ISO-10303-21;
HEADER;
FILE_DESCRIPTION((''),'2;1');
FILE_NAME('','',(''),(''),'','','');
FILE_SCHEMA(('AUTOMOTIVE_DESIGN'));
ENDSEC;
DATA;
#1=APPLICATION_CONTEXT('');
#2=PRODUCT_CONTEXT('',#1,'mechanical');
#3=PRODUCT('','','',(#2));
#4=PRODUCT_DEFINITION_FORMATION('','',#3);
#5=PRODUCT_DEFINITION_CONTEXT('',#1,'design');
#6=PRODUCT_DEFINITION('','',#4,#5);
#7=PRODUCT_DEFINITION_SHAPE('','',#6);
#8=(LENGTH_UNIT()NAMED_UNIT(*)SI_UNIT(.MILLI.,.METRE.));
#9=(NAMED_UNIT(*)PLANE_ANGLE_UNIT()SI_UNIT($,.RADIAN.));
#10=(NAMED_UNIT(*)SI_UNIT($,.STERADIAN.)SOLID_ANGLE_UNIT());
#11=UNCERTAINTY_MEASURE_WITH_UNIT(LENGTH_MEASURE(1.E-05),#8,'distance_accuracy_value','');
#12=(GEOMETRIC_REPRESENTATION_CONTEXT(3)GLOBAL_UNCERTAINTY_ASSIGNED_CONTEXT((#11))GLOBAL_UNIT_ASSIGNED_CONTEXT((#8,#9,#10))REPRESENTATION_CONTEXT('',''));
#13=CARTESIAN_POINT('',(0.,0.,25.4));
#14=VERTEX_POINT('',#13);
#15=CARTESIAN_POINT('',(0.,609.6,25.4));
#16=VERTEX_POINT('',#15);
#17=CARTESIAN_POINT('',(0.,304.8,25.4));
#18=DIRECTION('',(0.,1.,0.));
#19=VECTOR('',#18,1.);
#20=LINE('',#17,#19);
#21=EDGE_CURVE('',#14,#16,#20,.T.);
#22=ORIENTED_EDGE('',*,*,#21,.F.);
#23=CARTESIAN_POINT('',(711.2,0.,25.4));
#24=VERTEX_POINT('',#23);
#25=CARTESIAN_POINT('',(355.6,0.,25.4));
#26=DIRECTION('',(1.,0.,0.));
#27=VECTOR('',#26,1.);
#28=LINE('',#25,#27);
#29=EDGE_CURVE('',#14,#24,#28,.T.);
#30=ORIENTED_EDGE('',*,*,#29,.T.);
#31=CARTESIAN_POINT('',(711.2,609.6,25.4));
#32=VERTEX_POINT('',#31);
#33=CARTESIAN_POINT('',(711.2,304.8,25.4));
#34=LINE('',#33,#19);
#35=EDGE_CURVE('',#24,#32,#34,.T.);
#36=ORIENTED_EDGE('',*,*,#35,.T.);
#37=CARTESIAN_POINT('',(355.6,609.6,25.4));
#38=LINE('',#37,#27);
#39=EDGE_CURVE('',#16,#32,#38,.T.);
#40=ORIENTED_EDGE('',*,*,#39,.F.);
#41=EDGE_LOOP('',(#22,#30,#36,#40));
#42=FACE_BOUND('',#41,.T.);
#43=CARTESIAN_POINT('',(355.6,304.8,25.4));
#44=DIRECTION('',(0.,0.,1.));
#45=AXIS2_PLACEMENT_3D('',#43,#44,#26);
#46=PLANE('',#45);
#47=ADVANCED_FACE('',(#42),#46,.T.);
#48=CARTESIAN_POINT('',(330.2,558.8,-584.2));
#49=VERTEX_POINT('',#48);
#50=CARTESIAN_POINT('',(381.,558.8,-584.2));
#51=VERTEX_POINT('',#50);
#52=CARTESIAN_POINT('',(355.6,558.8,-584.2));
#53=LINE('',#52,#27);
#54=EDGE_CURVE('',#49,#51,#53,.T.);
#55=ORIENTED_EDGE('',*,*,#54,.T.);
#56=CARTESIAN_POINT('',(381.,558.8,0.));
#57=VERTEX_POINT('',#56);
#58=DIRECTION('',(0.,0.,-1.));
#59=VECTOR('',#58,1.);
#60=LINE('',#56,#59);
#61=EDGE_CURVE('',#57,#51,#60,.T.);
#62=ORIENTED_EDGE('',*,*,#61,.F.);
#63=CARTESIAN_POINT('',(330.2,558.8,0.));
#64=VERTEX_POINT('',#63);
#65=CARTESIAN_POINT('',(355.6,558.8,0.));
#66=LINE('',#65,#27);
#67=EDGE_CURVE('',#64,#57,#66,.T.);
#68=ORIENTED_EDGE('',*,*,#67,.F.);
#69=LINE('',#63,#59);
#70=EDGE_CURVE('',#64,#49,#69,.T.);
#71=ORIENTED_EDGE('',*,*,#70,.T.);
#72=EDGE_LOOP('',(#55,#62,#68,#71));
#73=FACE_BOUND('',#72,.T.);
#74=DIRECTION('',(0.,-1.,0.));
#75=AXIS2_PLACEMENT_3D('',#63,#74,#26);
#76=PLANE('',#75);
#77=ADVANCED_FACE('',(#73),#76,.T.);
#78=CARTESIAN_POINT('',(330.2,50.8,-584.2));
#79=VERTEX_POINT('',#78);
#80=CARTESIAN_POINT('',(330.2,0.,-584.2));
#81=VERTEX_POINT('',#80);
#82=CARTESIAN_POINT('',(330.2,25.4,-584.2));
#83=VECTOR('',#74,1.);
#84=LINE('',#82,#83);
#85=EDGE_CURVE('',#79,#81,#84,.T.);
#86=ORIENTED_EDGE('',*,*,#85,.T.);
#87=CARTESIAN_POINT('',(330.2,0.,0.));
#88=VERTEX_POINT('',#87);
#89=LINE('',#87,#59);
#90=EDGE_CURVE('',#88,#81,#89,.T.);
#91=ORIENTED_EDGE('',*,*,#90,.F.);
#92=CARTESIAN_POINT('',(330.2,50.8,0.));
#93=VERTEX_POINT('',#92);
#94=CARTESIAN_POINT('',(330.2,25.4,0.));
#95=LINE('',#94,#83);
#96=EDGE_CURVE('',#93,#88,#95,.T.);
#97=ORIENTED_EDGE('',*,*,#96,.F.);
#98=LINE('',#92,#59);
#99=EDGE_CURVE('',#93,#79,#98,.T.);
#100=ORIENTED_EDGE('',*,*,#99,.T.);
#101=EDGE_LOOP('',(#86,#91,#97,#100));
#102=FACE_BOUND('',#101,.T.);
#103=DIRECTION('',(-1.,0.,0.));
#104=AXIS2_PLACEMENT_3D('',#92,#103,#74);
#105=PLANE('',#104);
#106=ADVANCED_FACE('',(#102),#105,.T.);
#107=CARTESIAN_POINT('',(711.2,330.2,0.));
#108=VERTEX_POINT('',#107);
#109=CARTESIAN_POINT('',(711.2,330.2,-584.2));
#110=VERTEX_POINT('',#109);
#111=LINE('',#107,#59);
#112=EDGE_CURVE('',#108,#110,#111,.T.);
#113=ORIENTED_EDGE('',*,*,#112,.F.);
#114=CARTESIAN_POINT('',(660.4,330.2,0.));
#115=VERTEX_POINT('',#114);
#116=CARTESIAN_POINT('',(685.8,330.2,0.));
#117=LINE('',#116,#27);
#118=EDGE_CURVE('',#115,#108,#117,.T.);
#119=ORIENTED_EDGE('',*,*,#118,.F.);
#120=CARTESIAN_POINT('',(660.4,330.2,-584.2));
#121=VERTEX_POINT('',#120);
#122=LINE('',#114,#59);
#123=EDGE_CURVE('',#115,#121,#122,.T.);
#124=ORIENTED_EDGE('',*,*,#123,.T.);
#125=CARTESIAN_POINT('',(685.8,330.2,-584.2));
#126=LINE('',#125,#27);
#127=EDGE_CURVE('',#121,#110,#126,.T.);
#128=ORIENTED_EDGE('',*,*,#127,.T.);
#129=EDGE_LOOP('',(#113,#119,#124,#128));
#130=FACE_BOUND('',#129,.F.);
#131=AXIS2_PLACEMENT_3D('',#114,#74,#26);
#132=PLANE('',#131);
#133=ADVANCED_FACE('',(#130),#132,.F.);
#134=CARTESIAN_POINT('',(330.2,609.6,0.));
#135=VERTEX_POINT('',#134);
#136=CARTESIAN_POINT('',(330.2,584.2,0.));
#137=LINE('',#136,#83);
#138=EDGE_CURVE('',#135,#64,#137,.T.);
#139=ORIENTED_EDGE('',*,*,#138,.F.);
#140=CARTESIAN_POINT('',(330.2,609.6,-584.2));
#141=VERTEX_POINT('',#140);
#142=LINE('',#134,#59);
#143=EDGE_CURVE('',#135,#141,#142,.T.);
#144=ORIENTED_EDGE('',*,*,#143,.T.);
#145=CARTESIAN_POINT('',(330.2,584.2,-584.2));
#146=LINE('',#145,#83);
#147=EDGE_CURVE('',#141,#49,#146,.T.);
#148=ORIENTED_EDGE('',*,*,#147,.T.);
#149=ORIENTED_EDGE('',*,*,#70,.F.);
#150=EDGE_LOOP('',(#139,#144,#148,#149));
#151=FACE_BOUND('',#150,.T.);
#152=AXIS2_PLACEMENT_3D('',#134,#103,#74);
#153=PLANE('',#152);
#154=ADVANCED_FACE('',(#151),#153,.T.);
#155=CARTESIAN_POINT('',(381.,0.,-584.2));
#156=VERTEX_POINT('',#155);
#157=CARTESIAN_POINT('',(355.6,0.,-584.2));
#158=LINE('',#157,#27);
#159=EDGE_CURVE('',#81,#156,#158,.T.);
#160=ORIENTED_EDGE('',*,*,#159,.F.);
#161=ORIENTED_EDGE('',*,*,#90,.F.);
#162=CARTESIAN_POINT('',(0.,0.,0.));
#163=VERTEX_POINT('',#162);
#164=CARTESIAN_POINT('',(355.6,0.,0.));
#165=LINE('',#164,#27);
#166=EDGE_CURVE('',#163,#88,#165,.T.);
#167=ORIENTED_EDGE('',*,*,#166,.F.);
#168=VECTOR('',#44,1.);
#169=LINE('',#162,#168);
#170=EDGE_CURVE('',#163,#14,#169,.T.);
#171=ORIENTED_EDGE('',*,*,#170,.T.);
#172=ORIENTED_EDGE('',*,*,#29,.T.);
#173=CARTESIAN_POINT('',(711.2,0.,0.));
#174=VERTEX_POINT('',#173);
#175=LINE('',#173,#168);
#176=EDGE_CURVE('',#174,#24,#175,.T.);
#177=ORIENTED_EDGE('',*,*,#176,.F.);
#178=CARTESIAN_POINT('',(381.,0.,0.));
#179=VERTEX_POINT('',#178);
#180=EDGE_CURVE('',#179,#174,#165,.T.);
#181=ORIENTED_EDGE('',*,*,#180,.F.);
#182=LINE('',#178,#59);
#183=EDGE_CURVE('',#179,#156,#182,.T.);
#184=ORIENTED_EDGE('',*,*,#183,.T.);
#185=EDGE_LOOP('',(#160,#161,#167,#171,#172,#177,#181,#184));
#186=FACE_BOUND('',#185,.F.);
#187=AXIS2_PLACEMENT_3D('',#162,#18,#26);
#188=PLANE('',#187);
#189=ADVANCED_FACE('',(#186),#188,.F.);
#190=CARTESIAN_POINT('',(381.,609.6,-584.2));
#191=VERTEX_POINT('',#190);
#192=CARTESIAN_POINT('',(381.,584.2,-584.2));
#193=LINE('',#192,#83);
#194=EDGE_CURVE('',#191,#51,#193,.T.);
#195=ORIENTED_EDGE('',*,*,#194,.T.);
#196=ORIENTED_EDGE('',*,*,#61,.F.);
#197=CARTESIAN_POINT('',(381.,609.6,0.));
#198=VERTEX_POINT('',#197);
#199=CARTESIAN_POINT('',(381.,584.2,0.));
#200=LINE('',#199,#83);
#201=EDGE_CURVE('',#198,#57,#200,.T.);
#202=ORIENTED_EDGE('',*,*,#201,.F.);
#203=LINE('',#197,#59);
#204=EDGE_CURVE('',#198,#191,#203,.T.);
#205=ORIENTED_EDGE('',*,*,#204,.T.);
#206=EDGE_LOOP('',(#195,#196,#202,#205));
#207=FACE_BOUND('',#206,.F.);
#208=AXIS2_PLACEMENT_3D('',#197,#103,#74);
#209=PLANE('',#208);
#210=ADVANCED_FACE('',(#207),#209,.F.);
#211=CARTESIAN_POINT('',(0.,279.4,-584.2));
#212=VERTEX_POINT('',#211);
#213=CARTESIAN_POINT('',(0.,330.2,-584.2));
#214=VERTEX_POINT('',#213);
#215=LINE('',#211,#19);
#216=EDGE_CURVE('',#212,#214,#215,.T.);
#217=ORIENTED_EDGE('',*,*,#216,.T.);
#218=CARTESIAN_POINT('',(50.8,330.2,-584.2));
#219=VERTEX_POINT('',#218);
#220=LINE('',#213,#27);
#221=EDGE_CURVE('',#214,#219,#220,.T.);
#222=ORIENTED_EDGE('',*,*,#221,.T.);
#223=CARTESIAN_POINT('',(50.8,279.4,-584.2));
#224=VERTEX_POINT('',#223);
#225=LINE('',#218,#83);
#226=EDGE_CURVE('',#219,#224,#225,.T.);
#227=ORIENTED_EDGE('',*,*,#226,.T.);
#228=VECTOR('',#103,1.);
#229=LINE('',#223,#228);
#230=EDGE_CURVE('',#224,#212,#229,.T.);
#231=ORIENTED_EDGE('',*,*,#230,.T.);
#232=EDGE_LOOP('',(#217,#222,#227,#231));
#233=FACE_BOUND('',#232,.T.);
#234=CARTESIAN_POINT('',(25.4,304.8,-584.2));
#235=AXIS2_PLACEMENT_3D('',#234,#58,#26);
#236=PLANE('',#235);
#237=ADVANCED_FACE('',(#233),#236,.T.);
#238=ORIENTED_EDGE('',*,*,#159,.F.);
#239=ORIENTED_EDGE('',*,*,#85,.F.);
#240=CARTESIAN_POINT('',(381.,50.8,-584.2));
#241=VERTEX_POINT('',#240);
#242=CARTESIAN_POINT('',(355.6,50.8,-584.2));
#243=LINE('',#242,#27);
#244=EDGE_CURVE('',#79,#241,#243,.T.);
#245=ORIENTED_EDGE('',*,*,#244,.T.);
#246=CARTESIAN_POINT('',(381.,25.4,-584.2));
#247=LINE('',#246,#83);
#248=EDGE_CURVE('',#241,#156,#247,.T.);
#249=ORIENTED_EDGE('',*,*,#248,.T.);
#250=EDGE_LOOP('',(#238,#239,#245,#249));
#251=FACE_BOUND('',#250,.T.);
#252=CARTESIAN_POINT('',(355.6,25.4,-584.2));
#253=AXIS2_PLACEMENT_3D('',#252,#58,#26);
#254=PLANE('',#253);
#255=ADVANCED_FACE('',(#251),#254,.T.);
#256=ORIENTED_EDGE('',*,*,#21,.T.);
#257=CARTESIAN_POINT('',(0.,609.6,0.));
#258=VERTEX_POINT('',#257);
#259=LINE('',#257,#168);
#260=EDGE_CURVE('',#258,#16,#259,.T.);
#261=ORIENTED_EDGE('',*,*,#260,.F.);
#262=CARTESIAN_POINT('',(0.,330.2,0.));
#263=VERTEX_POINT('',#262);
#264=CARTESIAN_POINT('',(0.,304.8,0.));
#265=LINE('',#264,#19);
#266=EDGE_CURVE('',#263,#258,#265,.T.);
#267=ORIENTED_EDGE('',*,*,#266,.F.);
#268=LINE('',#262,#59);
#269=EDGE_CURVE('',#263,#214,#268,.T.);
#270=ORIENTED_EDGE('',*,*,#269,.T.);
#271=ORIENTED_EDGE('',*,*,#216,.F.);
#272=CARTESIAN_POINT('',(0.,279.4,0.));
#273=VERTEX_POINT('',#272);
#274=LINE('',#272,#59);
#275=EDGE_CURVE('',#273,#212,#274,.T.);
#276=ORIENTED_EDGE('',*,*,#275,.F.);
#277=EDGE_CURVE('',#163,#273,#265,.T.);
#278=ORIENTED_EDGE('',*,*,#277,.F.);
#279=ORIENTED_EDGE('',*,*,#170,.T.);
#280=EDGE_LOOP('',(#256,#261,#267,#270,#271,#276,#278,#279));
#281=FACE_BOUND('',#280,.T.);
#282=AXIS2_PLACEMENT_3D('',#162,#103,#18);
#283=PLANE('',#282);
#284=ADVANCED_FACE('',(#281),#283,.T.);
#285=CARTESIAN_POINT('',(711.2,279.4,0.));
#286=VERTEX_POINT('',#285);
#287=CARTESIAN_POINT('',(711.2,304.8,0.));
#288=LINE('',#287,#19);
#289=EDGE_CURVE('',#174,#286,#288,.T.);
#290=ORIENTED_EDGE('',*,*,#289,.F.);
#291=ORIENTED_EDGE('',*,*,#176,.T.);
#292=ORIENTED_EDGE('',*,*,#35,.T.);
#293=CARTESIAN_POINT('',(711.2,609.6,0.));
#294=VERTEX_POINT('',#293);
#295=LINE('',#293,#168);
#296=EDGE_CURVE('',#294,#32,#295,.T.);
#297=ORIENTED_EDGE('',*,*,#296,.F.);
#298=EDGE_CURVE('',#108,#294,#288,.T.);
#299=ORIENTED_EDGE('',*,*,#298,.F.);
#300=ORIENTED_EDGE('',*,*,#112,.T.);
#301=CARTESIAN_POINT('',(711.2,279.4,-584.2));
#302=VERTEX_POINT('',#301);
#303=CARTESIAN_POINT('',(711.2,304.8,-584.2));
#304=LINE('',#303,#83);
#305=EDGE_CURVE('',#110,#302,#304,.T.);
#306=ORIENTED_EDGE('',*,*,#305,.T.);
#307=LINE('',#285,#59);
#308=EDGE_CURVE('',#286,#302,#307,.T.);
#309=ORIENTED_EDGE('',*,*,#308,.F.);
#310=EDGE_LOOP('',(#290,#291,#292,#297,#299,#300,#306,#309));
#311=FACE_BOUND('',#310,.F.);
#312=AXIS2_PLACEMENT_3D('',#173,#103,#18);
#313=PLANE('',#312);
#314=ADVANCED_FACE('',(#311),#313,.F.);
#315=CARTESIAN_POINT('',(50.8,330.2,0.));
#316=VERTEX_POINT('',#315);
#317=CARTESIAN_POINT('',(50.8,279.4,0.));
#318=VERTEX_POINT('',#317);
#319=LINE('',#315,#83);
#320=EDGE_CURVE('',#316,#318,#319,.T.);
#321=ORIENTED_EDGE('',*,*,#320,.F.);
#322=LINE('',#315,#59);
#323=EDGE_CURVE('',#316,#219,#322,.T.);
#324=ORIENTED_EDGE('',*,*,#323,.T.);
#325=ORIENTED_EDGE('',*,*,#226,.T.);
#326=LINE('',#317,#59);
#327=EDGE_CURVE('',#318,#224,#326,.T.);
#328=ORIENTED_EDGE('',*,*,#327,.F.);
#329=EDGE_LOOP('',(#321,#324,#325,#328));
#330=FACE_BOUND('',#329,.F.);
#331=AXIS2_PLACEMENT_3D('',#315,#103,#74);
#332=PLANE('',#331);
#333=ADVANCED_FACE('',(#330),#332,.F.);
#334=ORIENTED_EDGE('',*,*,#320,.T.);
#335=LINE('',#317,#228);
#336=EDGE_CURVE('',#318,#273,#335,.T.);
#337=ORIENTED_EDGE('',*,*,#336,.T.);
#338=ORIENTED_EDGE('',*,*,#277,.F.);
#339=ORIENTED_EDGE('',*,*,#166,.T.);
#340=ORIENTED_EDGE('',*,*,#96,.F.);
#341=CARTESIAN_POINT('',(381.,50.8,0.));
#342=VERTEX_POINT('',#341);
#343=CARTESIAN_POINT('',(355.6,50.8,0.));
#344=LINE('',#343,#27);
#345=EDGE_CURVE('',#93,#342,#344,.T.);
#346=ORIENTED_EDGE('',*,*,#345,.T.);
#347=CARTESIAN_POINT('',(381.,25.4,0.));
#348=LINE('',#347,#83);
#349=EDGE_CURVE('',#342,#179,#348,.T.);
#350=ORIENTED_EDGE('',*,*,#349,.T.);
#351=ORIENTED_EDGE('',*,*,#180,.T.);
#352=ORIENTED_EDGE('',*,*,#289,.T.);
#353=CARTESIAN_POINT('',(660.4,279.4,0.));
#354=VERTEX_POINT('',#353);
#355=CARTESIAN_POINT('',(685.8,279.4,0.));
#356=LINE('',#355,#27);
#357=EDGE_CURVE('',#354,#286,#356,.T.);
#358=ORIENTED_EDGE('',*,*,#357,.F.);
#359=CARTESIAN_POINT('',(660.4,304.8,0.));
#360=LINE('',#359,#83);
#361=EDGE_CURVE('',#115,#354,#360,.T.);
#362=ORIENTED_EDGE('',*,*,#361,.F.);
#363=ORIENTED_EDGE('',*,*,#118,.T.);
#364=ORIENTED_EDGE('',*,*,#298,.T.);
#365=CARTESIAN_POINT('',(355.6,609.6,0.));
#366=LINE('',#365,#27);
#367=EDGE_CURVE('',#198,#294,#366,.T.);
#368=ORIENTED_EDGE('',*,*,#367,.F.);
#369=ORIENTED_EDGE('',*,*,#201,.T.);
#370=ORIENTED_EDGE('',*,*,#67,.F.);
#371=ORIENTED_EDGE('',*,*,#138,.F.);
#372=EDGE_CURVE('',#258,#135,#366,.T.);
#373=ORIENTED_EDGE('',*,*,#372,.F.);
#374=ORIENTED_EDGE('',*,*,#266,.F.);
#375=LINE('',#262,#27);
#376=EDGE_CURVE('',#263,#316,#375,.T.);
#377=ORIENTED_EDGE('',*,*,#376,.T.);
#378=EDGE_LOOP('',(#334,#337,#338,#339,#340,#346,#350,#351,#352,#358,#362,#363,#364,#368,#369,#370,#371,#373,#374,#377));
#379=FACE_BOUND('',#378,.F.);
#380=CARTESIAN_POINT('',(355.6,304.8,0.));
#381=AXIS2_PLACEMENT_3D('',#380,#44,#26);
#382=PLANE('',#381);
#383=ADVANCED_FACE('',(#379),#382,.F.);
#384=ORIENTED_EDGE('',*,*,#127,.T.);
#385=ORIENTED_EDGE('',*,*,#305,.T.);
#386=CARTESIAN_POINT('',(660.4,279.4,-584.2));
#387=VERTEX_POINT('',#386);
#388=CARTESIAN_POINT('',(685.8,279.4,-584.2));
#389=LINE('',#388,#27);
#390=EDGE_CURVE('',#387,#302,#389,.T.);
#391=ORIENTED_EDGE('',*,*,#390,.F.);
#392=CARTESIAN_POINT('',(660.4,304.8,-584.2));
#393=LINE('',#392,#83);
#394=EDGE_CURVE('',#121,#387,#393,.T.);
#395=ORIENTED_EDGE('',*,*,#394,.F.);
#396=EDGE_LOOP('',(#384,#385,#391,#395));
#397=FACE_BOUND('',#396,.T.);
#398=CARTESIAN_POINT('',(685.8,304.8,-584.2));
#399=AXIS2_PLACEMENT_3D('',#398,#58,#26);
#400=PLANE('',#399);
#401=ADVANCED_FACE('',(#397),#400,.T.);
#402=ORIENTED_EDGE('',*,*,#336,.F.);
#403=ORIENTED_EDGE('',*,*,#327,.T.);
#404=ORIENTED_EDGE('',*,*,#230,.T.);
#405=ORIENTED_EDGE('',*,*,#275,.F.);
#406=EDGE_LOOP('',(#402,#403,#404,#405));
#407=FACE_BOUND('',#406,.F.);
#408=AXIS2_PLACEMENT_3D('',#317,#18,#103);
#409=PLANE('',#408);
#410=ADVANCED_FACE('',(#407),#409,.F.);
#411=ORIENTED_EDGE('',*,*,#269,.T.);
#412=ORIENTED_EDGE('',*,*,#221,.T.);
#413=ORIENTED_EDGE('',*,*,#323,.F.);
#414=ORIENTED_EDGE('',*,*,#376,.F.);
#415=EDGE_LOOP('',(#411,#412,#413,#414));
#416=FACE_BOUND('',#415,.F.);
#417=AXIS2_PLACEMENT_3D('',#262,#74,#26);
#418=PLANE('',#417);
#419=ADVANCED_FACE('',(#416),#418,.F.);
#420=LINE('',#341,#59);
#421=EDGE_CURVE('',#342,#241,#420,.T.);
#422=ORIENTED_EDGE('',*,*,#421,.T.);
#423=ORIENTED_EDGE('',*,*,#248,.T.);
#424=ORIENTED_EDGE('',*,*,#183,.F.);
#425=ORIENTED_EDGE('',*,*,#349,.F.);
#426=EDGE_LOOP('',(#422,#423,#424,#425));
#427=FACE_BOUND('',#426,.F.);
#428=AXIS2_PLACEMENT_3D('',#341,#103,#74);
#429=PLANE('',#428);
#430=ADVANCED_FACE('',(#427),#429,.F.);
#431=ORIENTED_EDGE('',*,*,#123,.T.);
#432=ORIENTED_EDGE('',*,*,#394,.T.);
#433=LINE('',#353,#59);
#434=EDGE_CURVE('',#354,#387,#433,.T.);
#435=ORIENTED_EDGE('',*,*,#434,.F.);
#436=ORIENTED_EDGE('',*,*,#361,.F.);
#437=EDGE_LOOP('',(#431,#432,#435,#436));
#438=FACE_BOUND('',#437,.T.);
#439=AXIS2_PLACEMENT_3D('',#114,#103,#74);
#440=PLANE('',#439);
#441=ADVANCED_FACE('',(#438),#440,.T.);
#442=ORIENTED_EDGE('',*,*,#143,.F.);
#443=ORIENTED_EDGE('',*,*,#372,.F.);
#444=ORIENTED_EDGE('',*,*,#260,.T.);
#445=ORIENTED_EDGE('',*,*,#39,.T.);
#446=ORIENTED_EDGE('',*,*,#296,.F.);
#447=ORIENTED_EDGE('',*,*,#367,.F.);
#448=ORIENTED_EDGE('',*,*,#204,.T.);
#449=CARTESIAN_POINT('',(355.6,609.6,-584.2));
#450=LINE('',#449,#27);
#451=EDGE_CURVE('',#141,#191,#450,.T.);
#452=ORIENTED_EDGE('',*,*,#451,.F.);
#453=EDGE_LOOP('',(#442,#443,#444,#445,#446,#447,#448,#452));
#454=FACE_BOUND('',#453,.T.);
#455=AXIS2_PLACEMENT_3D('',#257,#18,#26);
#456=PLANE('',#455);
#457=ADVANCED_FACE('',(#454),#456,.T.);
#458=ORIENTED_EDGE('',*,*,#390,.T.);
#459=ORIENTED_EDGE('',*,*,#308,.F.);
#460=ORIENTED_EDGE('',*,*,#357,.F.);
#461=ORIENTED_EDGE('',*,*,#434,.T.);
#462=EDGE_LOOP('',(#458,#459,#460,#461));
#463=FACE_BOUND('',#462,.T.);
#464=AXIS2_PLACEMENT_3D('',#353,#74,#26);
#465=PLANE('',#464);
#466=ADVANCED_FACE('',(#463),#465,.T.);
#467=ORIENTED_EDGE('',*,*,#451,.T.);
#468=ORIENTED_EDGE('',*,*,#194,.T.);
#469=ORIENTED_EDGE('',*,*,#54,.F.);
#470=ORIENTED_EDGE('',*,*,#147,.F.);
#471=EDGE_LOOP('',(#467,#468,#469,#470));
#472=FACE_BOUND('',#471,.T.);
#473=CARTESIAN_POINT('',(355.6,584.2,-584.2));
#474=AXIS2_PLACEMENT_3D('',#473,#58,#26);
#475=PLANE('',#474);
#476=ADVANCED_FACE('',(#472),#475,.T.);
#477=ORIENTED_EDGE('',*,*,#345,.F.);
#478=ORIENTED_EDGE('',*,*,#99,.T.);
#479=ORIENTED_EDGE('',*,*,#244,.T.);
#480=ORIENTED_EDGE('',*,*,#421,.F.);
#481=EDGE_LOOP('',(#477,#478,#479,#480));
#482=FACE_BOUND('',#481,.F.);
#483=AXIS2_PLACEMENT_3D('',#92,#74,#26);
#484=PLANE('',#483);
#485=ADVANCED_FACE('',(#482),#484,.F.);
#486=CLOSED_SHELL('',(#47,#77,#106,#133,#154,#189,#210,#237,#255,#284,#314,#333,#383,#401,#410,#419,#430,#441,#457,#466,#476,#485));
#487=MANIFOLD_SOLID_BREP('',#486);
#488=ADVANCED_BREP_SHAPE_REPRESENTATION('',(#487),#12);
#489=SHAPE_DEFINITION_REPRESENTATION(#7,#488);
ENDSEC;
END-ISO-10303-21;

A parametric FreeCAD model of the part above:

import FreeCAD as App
import Part
import Sketcher
from FreeCAD import Vector
Q = App.Units.Quantity


def add_polygon(sketch, points):
    """Adds a closed chain of lines whose ends are joined by coincident constraints."""
    first, n = sketch.GeometryCount, len(points)
    for a, b in zip(points, points[1:] + points[:1]):
        sketch.addGeometry(Part.LineSegment(App.Vector(*a, 0), App.Vector(*b, 0)), False)
    for i in range(n):
        sketch.addConstraint(Sketcher.Constraint("Coincident", first + i, 2, first + (i + 1) % n, 1))

doc = App.newDocument("Part")
body = doc.addObject("PartDesign::Body", "Body")

sketch1 = body.newObject("Sketcher::SketchObject", "Sketch")
sketch1.AttachmentSupport = (doc.getObject("XY_Plane"), [""])
sketch1.MapMode = "FlatFace"
add_polygon(sketch1, [(0, 609.6), (0, 0), (711.2, 0), (711.2, 609.6)])
sketch1.addConstraint(Sketcher.Constraint("Vertical", 0))
sketch1.addConstraint(Sketcher.Constraint("Horizontal", 1))
sketch1.addConstraint(Sketcher.Constraint("Vertical", 2))
sketch1.addConstraint(Sketcher.Constraint("Horizontal", 3))
sketch1.addConstraint(Sketcher.Constraint("Coincident", 0, 2, -1, 1))
sketch1.addConstraint(Sketcher.Constraint("DistanceX", 1, 1, 1, 2, Q("28 in")))
sketch1.addConstraint(Sketcher.Constraint("DistanceY", 0, 2, 0, 1, Q("24 in")))
pad1 = body.newObject("PartDesign::Pad", "Pad")
pad1.Profile = sketch1
pad1.Length = Q("1 in")

sketch2 = body.newObject("Sketcher::SketchObject", "Sketch001")
sketch2.AttachmentSupport = (doc.getObject("XY_Plane"), [""])
sketch2.MapMode = "FlatFace"
add_polygon(sketch2, [(50.8, 279.4), (0, 279.4), (0, 330.2), (50.8, 330.2)])
add_polygon(sketch2, [(660.4, 279.4), (660.4, 330.2), (711.2, 330.2), (711.2, 279.4)])
add_polygon(sketch2, [(330.2, 558.8), (330.2, 609.6), (381, 609.6), (381, 558.8)])
add_polygon(sketch2, [(330.2, 0), (330.2, 50.8), (381, 50.8), (381, 0)])
sketch2.addConstraint(Sketcher.Constraint("Horizontal", 0))
sketch2.addConstraint(Sketcher.Constraint("Vertical", 1))
sketch2.addConstraint(Sketcher.Constraint("Horizontal", 2))
sketch2.addConstraint(Sketcher.Constraint("Vertical", 3))
sketch2.addConstraint(Sketcher.Constraint("Vertical", 4))
sketch2.addConstraint(Sketcher.Constraint("Horizontal", 5))
sketch2.addConstraint(Sketcher.Constraint("Vertical", 6))
sketch2.addConstraint(Sketcher.Constraint("Horizontal", 7))
sketch2.addConstraint(Sketcher.Constraint("Vertical", 8))
sketch2.addConstraint(Sketcher.Constraint("Horizontal", 9))
sketch2.addConstraint(Sketcher.Constraint("Vertical", 10))
sketch2.addConstraint(Sketcher.Constraint("Horizontal", 11))
sketch2.addConstraint(Sketcher.Constraint("Vertical", 12))
sketch2.addConstraint(Sketcher.Constraint("Horizontal", 13))
sketch2.addConstraint(Sketcher.Constraint("Vertical", 14))
sketch2.addConstraint(Sketcher.Constraint("Horizontal", 15))
sketch2.addConstraint(Sketcher.Constraint("PointOnObject", 0, 2, -2))
sketch2.addConstraint(Sketcher.Constraint("PointOnObject", 14, 2, -1))
sketch2.addConstraint(Sketcher.Constraint("Horizontal", 2, 2, 4, 2))
sketch2.addConstraint(Sketcher.Constraint("Horizontal", 3, 2, 6, 2))
sketch2.addConstraint(Sketcher.Constraint("Vertical", 11, 2, 12, 2))
sketch2.addConstraint(Sketcher.Constraint("Vertical", 10, 2, 13, 2))
sketch2.addConstraint(Sketcher.Constraint("Equal", 2, 5))
sketch2.addConstraint(Sketcher.Constraint("Equal", 7, 9))
sketch2.addConstraint(Sketcher.Constraint("Equal", 15, 1))
sketch2.addConstraint(Sketcher.Constraint("Equal", 6, 8))
sketch2.addConstraint(Sketcher.Constraint("Equal", 10, 12))
sketch2.addConstraint(Sketcher.Constraint("DistanceX", 0, 2, 0, 1, Q("2 in")))
sketch2.addConstraint(Sketcher.Constraint("DistanceY", -1, 1, 0, 2, Q("11 in")))
sketch2.addConstraint(Sketcher.Constraint("DistanceX", -1, 1, 4, 2, Q("26 in")))
sketch2.addConstraint(Sketcher.Constraint("DistanceX", -1, 1, 8, 2, Q("13 in")))
sketch2.addConstraint(Sketcher.Constraint("DistanceY", -1, 1, 8, 2, Q("24 in")))
pad2 = body.newObject("PartDesign::Pad", "Pad001")
pad2.Profile = sketch2
pad2.Length = Q("23 in")
pad2.Reversed = True

doc.recompute()
